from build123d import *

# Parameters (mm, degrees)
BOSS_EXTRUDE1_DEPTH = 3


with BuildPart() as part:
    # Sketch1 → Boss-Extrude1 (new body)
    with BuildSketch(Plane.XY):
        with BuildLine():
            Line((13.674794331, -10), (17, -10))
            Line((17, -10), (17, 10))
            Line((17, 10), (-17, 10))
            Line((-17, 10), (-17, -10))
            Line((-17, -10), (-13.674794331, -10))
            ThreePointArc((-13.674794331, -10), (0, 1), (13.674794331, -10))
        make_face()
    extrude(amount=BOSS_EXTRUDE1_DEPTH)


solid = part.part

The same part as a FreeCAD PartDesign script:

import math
import FreeCAD as App
import Part
import Sketcher
from FreeCAD import Vector
Q = App.Units.Quantity

doc = App.newDocument("Part")
params = doc.addObject("Spreadsheet::Sheet", "Params")
for row, (alias, value) in enumerate([
    ("sketch1_radius", "14 mm"),
    ("sketch1_width", "34 mm"),
    ("sketch1_height", "20 mm"),
    ("pad1_length", "3 mm"),
], start=1):
    params.set(f"A{row}", alias)
    params.set(f"B{row}", "=" + value)
    params.setAlias(f"B{row}", alias)

body = doc.addObject("PartDesign::Body", "Body")

# Sketch on XY plane
sketch1 = body.newObject("Sketcher::SketchObject", "Sketch")
sketch1.AttachmentSupport = (doc.getObject("XY_Plane"), [""])
sketch1.MapMode = "FlatFace"
sketch1.addGeometry([
    Part.LineSegment(Vector(13.674794, -10, 0), Vector(17, -10, 0)),  # 0
    Part.LineSegment(Vector(17, -10, 0), Vector(17, 10, 0)),  # 1
    Part.LineSegment(Vector(17, 10, 0), Vector(-17, 10, 0)),  # 2
    Part.LineSegment(Vector(-17, 10, 0), Vector(-17, -10, 0)),  # 3
    Part.LineSegment(Vector(-17, -10, 0), Vector(-13.674794, -10, 0)),  # 4
    Part.ArcOfCircle(Part.Circle(Vector(0, -13, 0), Vector(0, 0, 1), 14), math.radians(12.373625), math.radians(167.626375)),  # 5
], False)
sketch1.addConstraint([
    Sketcher.Constraint("Coincident", 0, 2, 1, 1),
    Sketcher.Constraint("Coincident", 1, 2, 2, 1),
    Sketcher.Constraint("Coincident", 2, 2, 3, 1),
    Sketcher.Constraint("Coincident", 3, 2, 4, 1),
    Sketcher.Constraint("Coincident", 4, 2, 5, 2),
    Sketcher.Constraint("Coincident", 5, 1, 0, 1),
    Sketcher.Constraint("Horizontal", 0),
    Sketcher.Constraint("Vertical", 1),
    Sketcher.Constraint("Horizontal", 2),
    Sketcher.Constraint("Vertical", 3),
    Sketcher.Constraint("Horizontal", 4),
    Sketcher.Constraint("Symmetric", 0, 2, 2, 2, -1, 1),
    Sketcher.Constraint("Symmetric", 4, 2, 5, 1, -2),
    Sketcher.Constraint("Radius", 5, Q("14 mm")),
    Sketcher.Constraint("DistanceX", 2, 2, 2, 1, Q("34 mm")),
    Sketcher.Constraint("DistanceY", 1, 1, 1, 2, Q("20 mm")),
    Sketcher.Constraint("DistanceY", 5, 3, -1, 1, Q("13 mm")),
])
sketch1.setExpression("Constraints[13]", "Params.sketch1_radius")
sketch1.setExpression("Constraints[14]", "Params.sketch1_width")
sketch1.setExpression("Constraints[15]", "Params.sketch1_height")
pad1 = body.newObject("PartDesign::Pad", "Pad")
pad1.Profile = sketch1
pad1.setExpression("Length", "Params.pad1_length")

doc.recompute()
